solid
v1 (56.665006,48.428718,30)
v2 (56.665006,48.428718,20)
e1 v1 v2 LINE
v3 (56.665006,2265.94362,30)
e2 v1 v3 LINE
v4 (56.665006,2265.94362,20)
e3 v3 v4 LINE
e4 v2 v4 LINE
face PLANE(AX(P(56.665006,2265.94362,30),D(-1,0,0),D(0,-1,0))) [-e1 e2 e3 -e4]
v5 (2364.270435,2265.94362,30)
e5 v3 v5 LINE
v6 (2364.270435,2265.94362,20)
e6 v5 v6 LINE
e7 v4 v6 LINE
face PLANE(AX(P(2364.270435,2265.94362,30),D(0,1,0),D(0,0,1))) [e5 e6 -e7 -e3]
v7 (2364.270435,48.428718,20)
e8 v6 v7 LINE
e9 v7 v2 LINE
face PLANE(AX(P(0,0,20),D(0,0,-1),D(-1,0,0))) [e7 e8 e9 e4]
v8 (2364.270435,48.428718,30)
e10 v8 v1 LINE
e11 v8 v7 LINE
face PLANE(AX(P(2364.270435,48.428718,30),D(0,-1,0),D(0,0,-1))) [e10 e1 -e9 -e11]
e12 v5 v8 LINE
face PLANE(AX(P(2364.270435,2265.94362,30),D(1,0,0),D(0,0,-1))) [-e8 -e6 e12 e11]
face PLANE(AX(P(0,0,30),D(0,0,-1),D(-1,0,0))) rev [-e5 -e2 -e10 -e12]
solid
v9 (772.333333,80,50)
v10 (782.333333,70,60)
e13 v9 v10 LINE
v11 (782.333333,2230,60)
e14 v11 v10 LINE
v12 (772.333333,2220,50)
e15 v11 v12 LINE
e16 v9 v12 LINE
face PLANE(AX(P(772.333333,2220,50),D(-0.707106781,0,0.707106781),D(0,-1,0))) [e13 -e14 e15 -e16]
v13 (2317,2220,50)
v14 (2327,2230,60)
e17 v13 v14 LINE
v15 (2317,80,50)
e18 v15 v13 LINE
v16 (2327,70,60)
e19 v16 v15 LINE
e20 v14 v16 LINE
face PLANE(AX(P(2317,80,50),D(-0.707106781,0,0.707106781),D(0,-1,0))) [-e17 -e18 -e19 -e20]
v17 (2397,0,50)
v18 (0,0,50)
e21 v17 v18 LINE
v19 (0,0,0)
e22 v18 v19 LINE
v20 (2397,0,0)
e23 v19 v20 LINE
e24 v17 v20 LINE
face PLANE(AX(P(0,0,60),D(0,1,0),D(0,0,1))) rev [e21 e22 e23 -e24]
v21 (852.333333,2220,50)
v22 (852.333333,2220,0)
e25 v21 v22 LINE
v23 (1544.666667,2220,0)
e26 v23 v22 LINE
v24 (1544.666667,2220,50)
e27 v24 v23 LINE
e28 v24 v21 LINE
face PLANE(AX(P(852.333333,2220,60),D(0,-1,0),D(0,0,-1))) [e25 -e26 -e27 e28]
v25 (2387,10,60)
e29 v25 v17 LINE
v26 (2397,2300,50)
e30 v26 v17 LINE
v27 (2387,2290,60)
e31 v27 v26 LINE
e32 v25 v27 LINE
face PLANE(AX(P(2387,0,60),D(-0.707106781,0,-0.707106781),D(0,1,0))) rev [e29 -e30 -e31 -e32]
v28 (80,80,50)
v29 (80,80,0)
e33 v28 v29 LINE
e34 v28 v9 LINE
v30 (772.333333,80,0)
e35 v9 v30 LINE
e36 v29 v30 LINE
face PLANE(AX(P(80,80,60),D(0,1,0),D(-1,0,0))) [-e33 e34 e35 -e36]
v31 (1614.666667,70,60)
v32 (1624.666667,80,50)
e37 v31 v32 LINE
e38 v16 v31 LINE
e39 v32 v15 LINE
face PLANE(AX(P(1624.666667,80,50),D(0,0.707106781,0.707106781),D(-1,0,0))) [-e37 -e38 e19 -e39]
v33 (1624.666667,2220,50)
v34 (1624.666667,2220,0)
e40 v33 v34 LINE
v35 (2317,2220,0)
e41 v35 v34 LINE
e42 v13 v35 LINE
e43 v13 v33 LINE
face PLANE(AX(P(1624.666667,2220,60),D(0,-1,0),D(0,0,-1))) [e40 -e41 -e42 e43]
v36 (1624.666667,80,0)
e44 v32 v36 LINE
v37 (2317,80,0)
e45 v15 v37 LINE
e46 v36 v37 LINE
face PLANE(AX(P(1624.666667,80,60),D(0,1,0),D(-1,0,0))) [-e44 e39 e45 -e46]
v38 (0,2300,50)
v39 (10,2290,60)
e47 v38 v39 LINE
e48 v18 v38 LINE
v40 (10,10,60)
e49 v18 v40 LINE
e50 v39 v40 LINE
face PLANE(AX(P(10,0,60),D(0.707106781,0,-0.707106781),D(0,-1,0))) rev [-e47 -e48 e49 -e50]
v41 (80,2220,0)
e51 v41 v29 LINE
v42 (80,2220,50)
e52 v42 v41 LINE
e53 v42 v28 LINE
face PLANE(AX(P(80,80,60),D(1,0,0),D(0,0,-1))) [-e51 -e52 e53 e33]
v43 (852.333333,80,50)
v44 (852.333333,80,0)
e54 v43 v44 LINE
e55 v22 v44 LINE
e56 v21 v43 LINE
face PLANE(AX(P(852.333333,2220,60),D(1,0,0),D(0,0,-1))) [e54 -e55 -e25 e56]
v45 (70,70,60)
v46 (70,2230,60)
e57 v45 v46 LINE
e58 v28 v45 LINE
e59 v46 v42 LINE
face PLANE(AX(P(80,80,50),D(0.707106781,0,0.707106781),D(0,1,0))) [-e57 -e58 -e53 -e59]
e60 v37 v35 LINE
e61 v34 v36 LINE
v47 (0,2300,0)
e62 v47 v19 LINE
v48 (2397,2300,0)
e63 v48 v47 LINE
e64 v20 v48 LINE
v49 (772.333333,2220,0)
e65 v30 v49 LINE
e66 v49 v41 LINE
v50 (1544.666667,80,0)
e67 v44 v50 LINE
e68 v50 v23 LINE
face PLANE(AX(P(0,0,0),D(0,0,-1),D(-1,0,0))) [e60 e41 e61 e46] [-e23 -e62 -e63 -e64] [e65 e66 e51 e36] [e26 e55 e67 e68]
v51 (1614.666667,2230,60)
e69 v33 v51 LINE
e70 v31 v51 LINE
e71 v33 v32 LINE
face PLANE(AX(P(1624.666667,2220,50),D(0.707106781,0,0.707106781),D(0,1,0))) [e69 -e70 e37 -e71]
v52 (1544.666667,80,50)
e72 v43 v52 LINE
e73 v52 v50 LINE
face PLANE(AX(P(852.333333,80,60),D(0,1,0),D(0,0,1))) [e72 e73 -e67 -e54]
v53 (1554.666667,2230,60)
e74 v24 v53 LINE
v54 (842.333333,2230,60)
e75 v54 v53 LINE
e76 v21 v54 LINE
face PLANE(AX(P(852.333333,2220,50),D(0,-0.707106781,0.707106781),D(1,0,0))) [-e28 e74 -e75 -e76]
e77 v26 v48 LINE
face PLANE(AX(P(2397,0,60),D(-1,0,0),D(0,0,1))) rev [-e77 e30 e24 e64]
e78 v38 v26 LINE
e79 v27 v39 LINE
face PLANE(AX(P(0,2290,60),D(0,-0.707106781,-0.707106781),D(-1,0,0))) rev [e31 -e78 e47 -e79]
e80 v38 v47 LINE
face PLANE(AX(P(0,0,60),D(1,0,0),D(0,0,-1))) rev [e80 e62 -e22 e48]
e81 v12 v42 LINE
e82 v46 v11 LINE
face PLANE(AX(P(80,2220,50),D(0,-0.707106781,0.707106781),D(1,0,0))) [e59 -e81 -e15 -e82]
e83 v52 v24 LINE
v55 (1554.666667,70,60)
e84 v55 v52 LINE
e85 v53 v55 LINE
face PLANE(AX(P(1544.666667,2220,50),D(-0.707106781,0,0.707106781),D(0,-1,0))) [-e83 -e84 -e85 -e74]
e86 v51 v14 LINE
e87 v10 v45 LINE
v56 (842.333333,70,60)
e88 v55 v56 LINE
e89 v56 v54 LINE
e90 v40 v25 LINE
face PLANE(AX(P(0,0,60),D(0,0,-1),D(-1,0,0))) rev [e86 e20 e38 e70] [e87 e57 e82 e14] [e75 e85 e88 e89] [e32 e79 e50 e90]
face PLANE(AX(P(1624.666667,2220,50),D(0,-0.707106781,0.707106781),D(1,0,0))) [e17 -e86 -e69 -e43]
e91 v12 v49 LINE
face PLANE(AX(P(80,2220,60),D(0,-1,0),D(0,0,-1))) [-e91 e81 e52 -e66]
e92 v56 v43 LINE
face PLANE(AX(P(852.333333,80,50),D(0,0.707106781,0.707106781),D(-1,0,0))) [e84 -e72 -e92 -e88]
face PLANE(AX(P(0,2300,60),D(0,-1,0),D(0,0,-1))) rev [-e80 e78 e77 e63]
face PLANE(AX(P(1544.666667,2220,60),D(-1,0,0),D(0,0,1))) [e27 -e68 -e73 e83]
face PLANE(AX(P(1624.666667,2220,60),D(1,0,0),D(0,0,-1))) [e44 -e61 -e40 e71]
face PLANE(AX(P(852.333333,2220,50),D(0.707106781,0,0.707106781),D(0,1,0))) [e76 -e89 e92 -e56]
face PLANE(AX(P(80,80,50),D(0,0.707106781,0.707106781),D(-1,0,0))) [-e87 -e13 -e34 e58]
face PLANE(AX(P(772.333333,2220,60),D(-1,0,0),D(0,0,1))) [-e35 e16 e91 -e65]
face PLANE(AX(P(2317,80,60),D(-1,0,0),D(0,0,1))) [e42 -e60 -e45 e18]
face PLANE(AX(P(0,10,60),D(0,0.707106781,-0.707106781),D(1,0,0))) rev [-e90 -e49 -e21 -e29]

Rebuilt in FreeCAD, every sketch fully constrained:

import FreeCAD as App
import Part
import Sketcher

V = App.Vector
Q = App.Units.Quantity


def edges_at(feature, points):
    """Names of the edges that pass closest to the given points."""
    edges = feature.Shape.Edges
    near = lambda p: min(range(len(edges)), key=lambda i: edges[i].distToShape(Part.Vertex(*p))[0])
    return sorted({f"Edge{near(p) + 1}" for p in points})

doc = App.newDocument("Part")
body = doc.addObject("PartDesign::Body", "Body")

# Sketch on XY plane
sketch1 = body.newObject("Sketcher::SketchObject", "Sketch")
sketch1.AttachmentSupport = (doc.getObject("XY_Plane"), [""])
sketch1.MapMode = "FlatFace"
sketch1.addGeometry(Part.LineSegment(V(0, 2300, 0), V(0, 0, 0)), False)
sketch1.addGeometry(Part.LineSegment(V(0, 0, 0), V(2397, 0, 0)), False)
sketch1.addGeometry(Part.LineSegment(V(2397, 0, 0), V(2397, 2300, 0)), False)
sketch1.addGeometry(Part.LineSegment(V(2397, 2300, 0), V(0, 2300, 0)), False)
sketch1.addGeometry(Part.LineSegment(V(772.333333, 80, 0), V(80, 80, 0)), False)
sketch1.addGeometry(Part.LineSegment(V(80, 80, 0), V(80, 2220, 0)), False)
sketch1.addGeometry(Part.LineSegment(V(80, 2220, 0), V(772.333333, 2220, 0)), False)
sketch1.addGeometry(Part.LineSegment(V(772.333333, 2220, 0), V(772.333333, 80, 0)), False)
sketch1.addGeometry(Part.LineSegment(V(1544.666667, 80, 0), V(852.333333, 80, 0)), False)
sketch1.addGeometry(Part.LineSegment(V(852.333333, 80, 0), V(852.333333, 2220, 0)), False)
sketch1.addGeometry(Part.LineSegment(V(852.333333, 2220, 0), V(1544.666667, 2220, 0)), False)
sketch1.addGeometry(Part.LineSegment(V(1544.666667, 2220, 0), V(1544.666667, 80, 0)), False)
sketch1.addGeometry(Part.LineSegment(V(2317, 80, 0), V(1624.666667, 80, 0)), False)
sketch1.addGeometry(Part.LineSegment(V(1624.666667, 80, 0), V(1624.666667, 2220, 0)), False)
sketch1.addGeometry(Part.LineSegment(V(1624.666667, 2220, 0), V(2317, 2220, 0)), False)
sketch1.addGeometry(Part.LineSegment(V(2317, 2220, 0), V(2317, 80, 0)), False)
sketch1.addConstraint(Sketcher.Constraint("Coincident", 0, 2, 1, 1))
sketch1.addConstraint(Sketcher.Constraint("Coincident", 1, 2, 2, 1))
sketch1.addConstraint(Sketcher.Constraint("Coincident", 2, 2, 3, 1))
sketch1.addConstraint(Sketcher.Constraint("Coincident", 3, 2, 0, 1))
sketch1.addConstraint(Sketcher.Constraint("Coincident", 4, 2, 5, 1))
sketch1.addConstraint(Sketcher.Constraint("Coincident", 5, 2, 6, 1))
sketch1.addConstraint(Sketcher.Constraint("Coincident", 6, 2, 7, 1))
sketch1.addConstraint(Sketcher.Constraint("Coincident", 7, 2, 4, 1))
sketch1.addConstraint(Sketcher.Constraint("Coincident", 8, 2, 9, 1))
sketch1.addConstraint(Sketcher.Constraint("Coincident", 9, 2, 10, 1))
sketch1.addConstraint(Sketcher.Constraint("Coincident", 10, 2, 11, 1))
sketch1.addConstraint(Sketcher.Constraint("Coincident", 11, 2, 8, 1))
sketch1.addConstraint(Sketcher.Constraint("Coincident", 12, 2, 13, 1))
sketch1.addConstraint(Sketcher.Constraint("Coincident", 13, 2, 14, 1))
sketch1.addConstraint(Sketcher.Constraint("Coincident", 14, 2, 15, 1))
sketch1.addConstraint(Sketcher.Constraint("Coincident", 15, 2, 12, 1))
sketch1.addConstraint(Sketcher.Constraint("Vertical", 0))
sketch1.addConstraint(Sketcher.Constraint("Horizontal", 1))
sketch1.addConstraint(Sketcher.Constraint("Vertical", 2))
sketch1.addConstraint(Sketcher.Constraint("Horizontal", 3))
sketch1.addConstraint(Sketcher.Constraint("Horizontal", 4))
sketch1.addConstraint(Sketcher.Constraint("Vertical", 5))
sketch1.addConstraint(Sketcher.Constraint("Horizontal", 6))
sketch1.addConstraint(Sketcher.Constraint("Vertical", 7))
sketch1.addConstraint(Sketcher.Constraint("Horizontal", 8))
sketch1.addConstraint(Sketcher.Constraint("Vertical", 9))
sketch1.addConstraint(Sketcher.Constraint("Horizontal", 10))
sketch1.addConstraint(Sketcher.Constraint("Vertical", 11))
sketch1.addConstraint(Sketcher.Constraint("Horizontal", 12))
sketch1.addConstraint(Sketcher.Constraint("Vertical", 13))
sketch1.addConstraint(Sketcher.Constraint("Horizontal", 14))
sketch1.addConstraint(Sketcher.Constraint("Vertical", 15))
sketch1.addConstraint(Sketcher.Constraint("Coincident", 0, 2, -1, 1))
sketch1.addConstraint(Sketcher.Constraint("Horizontal", 7, 2, 8, 2))
sketch1.addConstraint(Sketcher.Constraint("Horizontal", 6, 2, 9, 2))
sketch1.addConstraint(Sketcher.Constraint("Horizontal", 11, 2, 12, 2))
sketch1.addConstraint(Sketcher.Constraint("Horizontal", 10, 2, 13, 2))
sketch1.addConstraint(Sketcher.Constraint("Equal", 6, 8))
sketch1.addConstraint(Sketcher.Constraint("Equal", 10, 12))
sketch1.addConstraint(Sketcher.Constraint("DistanceX", 1, 1, 1, 2, Q("2397 mm")))
sketch1.addConstraint(Sketcher.Constraint("DistanceY", 0, 2, 0, 1, Q("2300 mm")))
sketch1.addConstraint(Sketcher.Constraint("DistanceY", 5, 1, 5, 2, Q("2140 mm")))
sketch1.addConstraint(Sketcher.Constraint("DistanceX", -1, 1, 4, 2, Q("80 mm")))
sketch1.addConstraint(Sketcher.Constraint("DistanceY", -1, 1, 4, 2, Q("80 mm")))
sketch1.addConstraint(Sketcher.Constraint("DistanceX", -1, 1, 14, 2, Q("2317 mm")))
sketch1.addConstraint(Sketcher.Constraint("DistanceX", 7, 2, 8, 2, Q("80 mm")))
sketch1.addConstraint(Sketcher.Constraint("DistanceX", 11, 2, 12, 2, Q("80 mm")))
pad1 = body.newObject("PartDesign::Pad", "Pad")
pad1.Profile = sketch1
pad1.Length = 60
doc.recompute()

chamfer = body.newObject("PartDesign::Chamfer", "Chamfer")
chamfer.Base = (pad1, edges_at(pad1, [
    (2397, 1150, 60),
    (426.167, 80, 60),
    (1198.5, 2300, 60),
    (772.333, 1150, 60),
    (426.167, 2220, 60),
    (80, 1150, 60),
    (1970.833, 2220, 60),
    (1624.667, 1150, 60),
    (1970.833, 80, 60),
    (2317, 1150, 60),
    (1198.5, 2220, 60),
    (852.333, 1150, 60),
    (1198.5, 80, 60),
    (1544.667, 1150, 60),
    (0, 1150, 60),
    (1198.5, 0, 60),
]))
chamfer.Size = 10
body2 = doc.addObject("PartDesign::Body", "Body001")

# Sketch on XY plane
sketch2 = body2.newObject("Sketcher::SketchObject", "Sketch001")
sketch2.AttachmentSupport = (doc.getObject("XY_Plane001"), [""])
sketch2.MapMode = "FlatFace"
sketch2.AttachmentOffset = App.Placement(V(0, 0, 20), App.Rotation())
sketch2.addGeometry(Part.LineSegment(V(2364.270435, 2265.94362, 0), V(2364.270435, 48.428718, 0)), False)
sketch2.addGeometry(Part.LineSegment(V(2364.270435, 48.428718, 0), V(56.665006, 48.428718, 0)), False)
sketch2.addGeometry(Part.LineSegment(V(56.665006, 48.428718, 0), V(56.665006, 2265.94362, 0)), False)
sketch2.addGeometry(Part.LineSegment(V(56.665006, 2265.94362, 0), V(2364.270435, 2265.94362, 0)), False)
sketch2.addConstraint(Sketcher.Constraint("Coincident", 0, 2, 1, 1))
sketch2.addConstraint(Sketcher.Constraint("Coincident", 1, 2, 2, 1))
sketch2.addConstraint(Sketcher.Constraint("Coincident", 2, 2, 3, 1))
sketch2.addConstraint(Sketcher.Constraint("Coincident", 3, 2, 0, 1))
sketch2.addConstraint(Sketcher.Constraint("Vertical", 0))
sketch2.addConstraint(Sketcher.Constraint("Horizontal", 1))
sketch2.addConstraint(Sketcher.Constraint("Vertical", 2))
sketch2.addConstraint(Sketcher.Constraint("Horizontal", 3))
sketch2.addConstraint(Sketcher.Constraint("DistanceX", 1, 2, 1, 1, Q("2307.605429 mm")))
sketch2.addConstraint(Sketcher.Constraint("DistanceY", 0, 2, 0, 1, Q("2217.514902 mm")))
sketch2.addConstraint(Sketcher.Constraint("DistanceY", -1, 1, 0, 2, Q("48.428718 mm")))
sketch2.addConstraint(Sketcher.Constraint("DistanceX", -1, 1, 0, 2, Q("2364.270435 mm")))
pad2 = body2.newObject("PartDesign::Pad", "Pad001")
pad2.Profile = sketch2
pad2.Length = 10

doc.recompute()
